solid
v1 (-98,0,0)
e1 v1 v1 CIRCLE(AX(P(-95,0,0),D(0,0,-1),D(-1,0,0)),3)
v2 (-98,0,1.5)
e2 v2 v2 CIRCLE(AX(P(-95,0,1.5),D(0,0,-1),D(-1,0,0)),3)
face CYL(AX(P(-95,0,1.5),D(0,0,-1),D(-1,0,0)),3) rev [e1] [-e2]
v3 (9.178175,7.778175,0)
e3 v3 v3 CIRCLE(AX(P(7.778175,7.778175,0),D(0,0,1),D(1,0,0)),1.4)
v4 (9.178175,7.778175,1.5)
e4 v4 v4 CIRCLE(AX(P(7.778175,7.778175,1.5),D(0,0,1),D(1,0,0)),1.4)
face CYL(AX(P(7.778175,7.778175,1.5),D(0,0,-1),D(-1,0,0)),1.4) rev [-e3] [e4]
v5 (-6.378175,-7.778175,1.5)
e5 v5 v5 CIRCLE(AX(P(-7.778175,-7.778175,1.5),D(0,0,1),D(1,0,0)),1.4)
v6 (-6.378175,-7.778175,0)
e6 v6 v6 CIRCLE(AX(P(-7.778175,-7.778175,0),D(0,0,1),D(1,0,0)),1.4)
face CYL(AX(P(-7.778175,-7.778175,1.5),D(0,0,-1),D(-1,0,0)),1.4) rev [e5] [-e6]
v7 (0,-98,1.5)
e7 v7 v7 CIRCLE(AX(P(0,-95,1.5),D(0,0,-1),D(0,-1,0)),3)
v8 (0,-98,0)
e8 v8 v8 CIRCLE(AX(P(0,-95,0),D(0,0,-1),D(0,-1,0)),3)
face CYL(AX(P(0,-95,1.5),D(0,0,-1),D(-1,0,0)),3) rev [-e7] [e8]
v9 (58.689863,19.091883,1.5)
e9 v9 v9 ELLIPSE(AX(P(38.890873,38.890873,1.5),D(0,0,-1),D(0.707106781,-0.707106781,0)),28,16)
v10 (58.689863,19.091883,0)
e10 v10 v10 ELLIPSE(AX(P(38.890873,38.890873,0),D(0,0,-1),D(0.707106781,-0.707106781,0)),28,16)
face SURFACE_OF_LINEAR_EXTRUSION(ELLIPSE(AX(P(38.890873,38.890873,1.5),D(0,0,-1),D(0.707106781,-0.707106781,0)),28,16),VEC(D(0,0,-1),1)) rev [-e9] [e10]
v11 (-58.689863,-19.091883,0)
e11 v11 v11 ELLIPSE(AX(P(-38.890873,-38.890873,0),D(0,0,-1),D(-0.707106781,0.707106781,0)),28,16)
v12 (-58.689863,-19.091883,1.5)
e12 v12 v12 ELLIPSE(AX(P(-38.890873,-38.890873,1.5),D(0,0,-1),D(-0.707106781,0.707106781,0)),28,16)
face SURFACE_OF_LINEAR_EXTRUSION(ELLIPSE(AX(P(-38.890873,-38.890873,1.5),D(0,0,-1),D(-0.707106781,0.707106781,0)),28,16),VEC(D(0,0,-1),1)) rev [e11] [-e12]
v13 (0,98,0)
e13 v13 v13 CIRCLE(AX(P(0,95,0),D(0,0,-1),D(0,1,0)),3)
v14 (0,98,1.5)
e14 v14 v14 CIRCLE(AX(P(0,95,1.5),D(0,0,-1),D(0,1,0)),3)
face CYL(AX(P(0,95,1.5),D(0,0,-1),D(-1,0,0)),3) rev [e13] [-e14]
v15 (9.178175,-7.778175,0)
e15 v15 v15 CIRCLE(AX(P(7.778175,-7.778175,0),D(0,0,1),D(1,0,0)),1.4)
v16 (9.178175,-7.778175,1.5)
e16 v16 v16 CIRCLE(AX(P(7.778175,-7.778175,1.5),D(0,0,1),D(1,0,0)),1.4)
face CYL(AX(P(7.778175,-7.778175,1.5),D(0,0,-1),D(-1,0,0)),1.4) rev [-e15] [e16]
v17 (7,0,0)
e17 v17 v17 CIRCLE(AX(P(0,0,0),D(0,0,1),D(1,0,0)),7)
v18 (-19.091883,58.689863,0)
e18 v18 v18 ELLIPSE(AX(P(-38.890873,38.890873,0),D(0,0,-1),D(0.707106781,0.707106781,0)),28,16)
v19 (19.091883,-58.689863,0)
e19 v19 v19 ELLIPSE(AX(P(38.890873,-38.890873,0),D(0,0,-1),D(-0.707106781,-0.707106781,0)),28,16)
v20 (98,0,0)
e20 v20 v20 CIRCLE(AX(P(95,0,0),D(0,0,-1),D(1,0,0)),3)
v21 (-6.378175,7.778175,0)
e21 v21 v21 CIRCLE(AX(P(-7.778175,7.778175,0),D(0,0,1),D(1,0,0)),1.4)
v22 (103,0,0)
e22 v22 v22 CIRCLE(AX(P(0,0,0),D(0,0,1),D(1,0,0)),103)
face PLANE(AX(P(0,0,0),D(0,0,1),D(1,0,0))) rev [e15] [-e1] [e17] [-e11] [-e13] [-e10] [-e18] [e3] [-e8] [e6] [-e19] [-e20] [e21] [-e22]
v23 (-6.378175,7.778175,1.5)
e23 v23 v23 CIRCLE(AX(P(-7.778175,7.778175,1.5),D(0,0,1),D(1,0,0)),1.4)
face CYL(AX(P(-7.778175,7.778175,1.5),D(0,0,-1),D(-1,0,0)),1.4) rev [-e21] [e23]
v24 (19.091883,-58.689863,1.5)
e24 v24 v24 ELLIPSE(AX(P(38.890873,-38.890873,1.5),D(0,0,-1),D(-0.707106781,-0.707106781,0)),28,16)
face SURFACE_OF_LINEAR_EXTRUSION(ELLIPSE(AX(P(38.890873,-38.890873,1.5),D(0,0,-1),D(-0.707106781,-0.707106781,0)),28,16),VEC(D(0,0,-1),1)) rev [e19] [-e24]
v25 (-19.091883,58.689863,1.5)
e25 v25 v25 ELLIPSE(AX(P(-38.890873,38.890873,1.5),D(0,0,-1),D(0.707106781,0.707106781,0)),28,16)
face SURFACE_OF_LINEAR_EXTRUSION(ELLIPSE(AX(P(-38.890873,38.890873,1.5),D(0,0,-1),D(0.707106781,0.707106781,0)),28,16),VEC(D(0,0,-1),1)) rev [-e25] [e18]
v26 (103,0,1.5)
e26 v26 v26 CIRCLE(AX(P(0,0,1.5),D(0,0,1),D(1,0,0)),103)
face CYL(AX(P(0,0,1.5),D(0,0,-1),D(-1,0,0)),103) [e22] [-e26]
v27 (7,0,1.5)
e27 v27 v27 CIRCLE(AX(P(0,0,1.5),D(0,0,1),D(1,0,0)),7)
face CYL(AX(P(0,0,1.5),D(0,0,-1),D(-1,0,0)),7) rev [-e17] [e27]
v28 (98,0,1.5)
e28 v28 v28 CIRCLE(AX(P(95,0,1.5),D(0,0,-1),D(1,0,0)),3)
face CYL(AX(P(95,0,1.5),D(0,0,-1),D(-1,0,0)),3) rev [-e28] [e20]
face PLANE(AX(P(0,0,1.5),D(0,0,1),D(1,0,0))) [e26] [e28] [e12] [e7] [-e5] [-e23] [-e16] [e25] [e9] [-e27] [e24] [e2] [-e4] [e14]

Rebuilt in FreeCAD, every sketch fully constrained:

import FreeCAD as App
import Part
import Sketcher

doc = App.newDocument("Part")
body = doc.addObject("PartDesign::Body", "Body")

# Sketch on XY plane
sketch1 = doc.addObject("Sketcher::SketchObject", "Sketch")
body.addObject(sketch1)
sketch1.AttachmentSupport = (doc.XY_Plane, [""])
sketch1.MapMode = "FlatFace"
sketch1.addGeometry(Part.Circle(App.Vector(0, 0, 0), App.Vector(0, 0, 1), 103), False)
sketch1.addConstraint([
    Sketcher.Constraint("Coincident", 0, 3, -1, 1),
    Sketcher.Constraint("Diameter", 0, 206.0),
])
pad1 = doc.addObject("PartDesign::Pad", "Pad")
body.addObject(pad1)
pad1.Profile = sketch1
pad1.Length = 1.5

# Sketch on XY plane
sketch2 = doc.addObject("Sketcher::SketchObject", "Sketch001")
body.addObject(sketch2)
sketch2.AttachmentSupport = (doc.XY_Plane, [""])
sketch2.MapMode = "FlatFace"
sketch2.addGeometry(Part.Circle(App.Vector(-95, 0, 0), App.Vector(0, 0, 1), 3), False)
sketch2.addConstraint([
    Sketcher.Constraint("PointOnObject", 0, 3, -1),
    Sketcher.Constraint("Diameter", 0, 6.0),
    Sketcher.Constraint("DistanceX", 0, 3, -1, 1, 95.0),
])
pocket1 = doc.addObject("PartDesign::Pocket", "Pocket")
body.addObject(pocket1)
pocket1.Profile = sketch2
pocket1.Type = "ThroughAll"
pocket1.Reversed = True

# Sketch on XY plane
sketch3 = doc.addObject("Sketcher::SketchObject", "Sketch002")
body.addObject(sketch3)
sketch3.AttachmentSupport = (doc.XY_Plane, [""])
sketch3.MapMode = "FlatFace"
sketch3.addGeometry(Part.Ellipse(App.Vector(-19.091883, 58.689863, 0), App.Vector(-50.204581, 50.204581, 0), App.Vector(-38.890873, 38.890873, 0)), False)
sketch3.addConstraint(Sketcher.Constraint("Block", 0))
pocket2 = doc.addObject("PartDesign::Pocket", "Pocket001")
body.addObject(pocket2)
pocket2.Profile = sketch3
pocket2.Type = "ThroughAll"
pocket2.Reversed = True

# Sketch on XY plane
sketch4 = doc.addObject("Sketcher::SketchObject", "Sketch003")
body.addObject(sketch4)
sketch4.AttachmentSupport = (doc.XY_Plane, [""])
sketch4.MapMode = "FlatFace"
sketch4.addGeometry(Part.Circle(App.Vector(0, 0, 0), App.Vector(0, 0, 1), 8), False)
sketch4.addConstraint([
    Sketcher.Constraint("Coincident", 0, 3, -1, 1),
    Sketcher.Constraint("Diameter", 0, 15.0),
])
pocket3 = doc.addObject("PartDesign::Pocket", "Pocket002")
body.addObject(pocket3)
pocket3.Profile = sketch4
pocket3.Type = "ThroughAll"
pocket3.Reversed = True
doc.recompute()

polarpattern = doc.addObject("PartDesign::PolarPattern", "PolarPattern")
body.addObject(polarpattern)
polarpattern.Originals = [pocket1]
polarpattern.Axis = (doc.Z_Axis, [""])
polarpattern.Angle = 360
polarpattern.Occurrences = 4
body.Tip = polarpattern
doc.recompute()

polarpattern2 = doc.addObject("PartDesign::PolarPattern", "PolarPattern001")
body.addObject(polarpattern2)
polarpattern2.Originals = [pocket2]
polarpattern2.Axis = (doc.Z_Axis, [""])
polarpattern2.Angle = 360
polarpattern2.Occurrences = 4
body.Tip = polarpattern2

# Sketch on XY plane
sketch5 = doc.addObject("Sketcher::SketchObject", "Sketch004")
body.addObject(sketch5)
sketch5.AttachmentSupport = (doc.XY_Plane, [""])
sketch5.MapMode = "FlatFace"
sketch5.addGeometry([
    Part.Circle(App.Vector(-7.8, -7.8, 0), App.Vector(0, 0, 1), 1.4),
    Part.Circle(App.Vector(-7.8, 7.8, 0), App.Vector(0, 0, 1), 1.4),
    Part.Circle(App.Vector(7.8, 7.8, 0), App.Vector(0, 0, 1), 1.4),
    Part.Circle(App.Vector(7.8, -7.8, 0), App.Vector(0, 0, 1), 1.4),
], False)
sketch5.addConstraint([
    Sketcher.Constraint("Equal", 0, 1),
    Sketcher.Constraint("Equal", 1, 2),
    Sketcher.Constraint("Equal", 2, 3),
    Sketcher.Constraint("Symmetric", 0, 3, 2, 3, -1, 1),
    Sketcher.Constraint("Symmetric", 1, 3, 3, 3, -1, 1),
    Sketcher.Constraint("Symmetric", 1, 3, 2, 3, -2),
    Sketcher.Constraint("Diameter", 0, 2.8),
    Sketcher.Constraint("DistanceY", 0, 3, 1, 3, 15.556349),
    Sketcher.Constraint("DistanceX", 1, 3, 2, 3, 15.556349),
])
pocket4 = doc.addObject("PartDesign::Pocket", "Pocket003")
body.addObject(pocket4)
pocket4.Profile = sketch5
pocket4.Type = "ThroughAll"
pocket4.Reversed = True

# Sketch on XY plane
sketch6 = doc.addObject("Sketcher::SketchObject", "Sketch005")
body.addObject(sketch6)
sketch6.AttachmentSupport = (doc.XY_Plane, [""])
sketch6.MapMode = "FlatFace"
sketch6.addGeometry([
    Part.Circle(App.Vector(0, 0, 0), App.Vector(0, 0, 1), 8),
    Part.Circle(App.Vector(0, 0, 0), App.Vector(0, 0, 1), 7),
], False)
sketch6.addConstraint([
    Sketcher.Constraint("Coincident", 0, 3, -1, 1),
    Sketcher.Constraint("Coincident", 1, 3, -1, 1),
    Sketcher.Constraint("Diameter", 1, 14.0),
    Sketcher.Constraint("Diameter", 0, 15.02),
])
pad2 = doc.addObject("PartDesign::Pad", "Pad001")
body.addObject(pad2)
pad2.Profile = sketch6
pad2.Length = 1.5

doc.recompute()
